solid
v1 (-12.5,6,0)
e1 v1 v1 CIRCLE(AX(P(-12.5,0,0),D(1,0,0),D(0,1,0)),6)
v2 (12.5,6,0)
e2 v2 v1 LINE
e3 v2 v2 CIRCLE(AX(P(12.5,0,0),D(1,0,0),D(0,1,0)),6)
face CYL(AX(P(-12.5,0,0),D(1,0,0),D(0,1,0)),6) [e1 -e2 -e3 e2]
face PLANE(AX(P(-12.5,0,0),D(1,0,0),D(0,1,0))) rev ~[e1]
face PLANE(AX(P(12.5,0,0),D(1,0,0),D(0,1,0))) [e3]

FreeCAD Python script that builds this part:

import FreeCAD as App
import Part
import Sketcher
Q = App.Units.Quantity

doc = App.newDocument("Part")
body = doc.addObject("PartDesign::Body", "Body")

sketch1 = doc.addObject("Sketcher::SketchObject", "Sketch")
body.addObject(sketch1)
sketch1.AttachmentSupport = (doc.XY_Plane, [""])
sketch1.MapMode = "FlatFace"
sketch1.addGeometry([
    Part.LineSegment(App.Vector(12.5, 0, 0), App.Vector(12.5, 6, 0)),
    Part.LineSegment(App.Vector(12.5, 6, 0), App.Vector(-12.5, 6, 0)),
    Part.LineSegment(App.Vector(-12.5, 6, 0), App.Vector(-12.5, 0, 0)),
    Part.LineSegment(App.Vector(-12.5, 0, 0), App.Vector(12.5, 0, 0)),
], False)
sketch1.addConstraint([
    Sketcher.Constraint("Coincident", 0, 2, 1, 1),
    Sketcher.Constraint("Coincident", 1, 2, 2, 1),
    Sketcher.Constraint("Coincident", 2, 2, 3, 1),
    Sketcher.Constraint("Coincident", 3, 2, 0, 1),
    Sketcher.Constraint("Vertical", 0),
    Sketcher.Constraint("Horizontal", 1),
    Sketcher.Constraint("Vertical", 2),
    Sketcher.Constraint("Horizontal", 3),
    Sketcher.Constraint("Symmetric", 2, 2, 3, 2, -1, 1),
    Sketcher.Constraint("DistanceX", 1, 2, 1, 1, Q("25 mm")),
    Sketcher.Constraint("DistanceY", 0, 1, 0, 2, Q("6 mm")),
])
revolution = doc.addObject("PartDesign::Revolution", "Revolution")
body.addObject(revolution)
revolution.Profile = sketch1
revolution.ReferenceAxis = (sketch1, ["H_Axis"])
revolution.Angle = 360

doc.recompute()
